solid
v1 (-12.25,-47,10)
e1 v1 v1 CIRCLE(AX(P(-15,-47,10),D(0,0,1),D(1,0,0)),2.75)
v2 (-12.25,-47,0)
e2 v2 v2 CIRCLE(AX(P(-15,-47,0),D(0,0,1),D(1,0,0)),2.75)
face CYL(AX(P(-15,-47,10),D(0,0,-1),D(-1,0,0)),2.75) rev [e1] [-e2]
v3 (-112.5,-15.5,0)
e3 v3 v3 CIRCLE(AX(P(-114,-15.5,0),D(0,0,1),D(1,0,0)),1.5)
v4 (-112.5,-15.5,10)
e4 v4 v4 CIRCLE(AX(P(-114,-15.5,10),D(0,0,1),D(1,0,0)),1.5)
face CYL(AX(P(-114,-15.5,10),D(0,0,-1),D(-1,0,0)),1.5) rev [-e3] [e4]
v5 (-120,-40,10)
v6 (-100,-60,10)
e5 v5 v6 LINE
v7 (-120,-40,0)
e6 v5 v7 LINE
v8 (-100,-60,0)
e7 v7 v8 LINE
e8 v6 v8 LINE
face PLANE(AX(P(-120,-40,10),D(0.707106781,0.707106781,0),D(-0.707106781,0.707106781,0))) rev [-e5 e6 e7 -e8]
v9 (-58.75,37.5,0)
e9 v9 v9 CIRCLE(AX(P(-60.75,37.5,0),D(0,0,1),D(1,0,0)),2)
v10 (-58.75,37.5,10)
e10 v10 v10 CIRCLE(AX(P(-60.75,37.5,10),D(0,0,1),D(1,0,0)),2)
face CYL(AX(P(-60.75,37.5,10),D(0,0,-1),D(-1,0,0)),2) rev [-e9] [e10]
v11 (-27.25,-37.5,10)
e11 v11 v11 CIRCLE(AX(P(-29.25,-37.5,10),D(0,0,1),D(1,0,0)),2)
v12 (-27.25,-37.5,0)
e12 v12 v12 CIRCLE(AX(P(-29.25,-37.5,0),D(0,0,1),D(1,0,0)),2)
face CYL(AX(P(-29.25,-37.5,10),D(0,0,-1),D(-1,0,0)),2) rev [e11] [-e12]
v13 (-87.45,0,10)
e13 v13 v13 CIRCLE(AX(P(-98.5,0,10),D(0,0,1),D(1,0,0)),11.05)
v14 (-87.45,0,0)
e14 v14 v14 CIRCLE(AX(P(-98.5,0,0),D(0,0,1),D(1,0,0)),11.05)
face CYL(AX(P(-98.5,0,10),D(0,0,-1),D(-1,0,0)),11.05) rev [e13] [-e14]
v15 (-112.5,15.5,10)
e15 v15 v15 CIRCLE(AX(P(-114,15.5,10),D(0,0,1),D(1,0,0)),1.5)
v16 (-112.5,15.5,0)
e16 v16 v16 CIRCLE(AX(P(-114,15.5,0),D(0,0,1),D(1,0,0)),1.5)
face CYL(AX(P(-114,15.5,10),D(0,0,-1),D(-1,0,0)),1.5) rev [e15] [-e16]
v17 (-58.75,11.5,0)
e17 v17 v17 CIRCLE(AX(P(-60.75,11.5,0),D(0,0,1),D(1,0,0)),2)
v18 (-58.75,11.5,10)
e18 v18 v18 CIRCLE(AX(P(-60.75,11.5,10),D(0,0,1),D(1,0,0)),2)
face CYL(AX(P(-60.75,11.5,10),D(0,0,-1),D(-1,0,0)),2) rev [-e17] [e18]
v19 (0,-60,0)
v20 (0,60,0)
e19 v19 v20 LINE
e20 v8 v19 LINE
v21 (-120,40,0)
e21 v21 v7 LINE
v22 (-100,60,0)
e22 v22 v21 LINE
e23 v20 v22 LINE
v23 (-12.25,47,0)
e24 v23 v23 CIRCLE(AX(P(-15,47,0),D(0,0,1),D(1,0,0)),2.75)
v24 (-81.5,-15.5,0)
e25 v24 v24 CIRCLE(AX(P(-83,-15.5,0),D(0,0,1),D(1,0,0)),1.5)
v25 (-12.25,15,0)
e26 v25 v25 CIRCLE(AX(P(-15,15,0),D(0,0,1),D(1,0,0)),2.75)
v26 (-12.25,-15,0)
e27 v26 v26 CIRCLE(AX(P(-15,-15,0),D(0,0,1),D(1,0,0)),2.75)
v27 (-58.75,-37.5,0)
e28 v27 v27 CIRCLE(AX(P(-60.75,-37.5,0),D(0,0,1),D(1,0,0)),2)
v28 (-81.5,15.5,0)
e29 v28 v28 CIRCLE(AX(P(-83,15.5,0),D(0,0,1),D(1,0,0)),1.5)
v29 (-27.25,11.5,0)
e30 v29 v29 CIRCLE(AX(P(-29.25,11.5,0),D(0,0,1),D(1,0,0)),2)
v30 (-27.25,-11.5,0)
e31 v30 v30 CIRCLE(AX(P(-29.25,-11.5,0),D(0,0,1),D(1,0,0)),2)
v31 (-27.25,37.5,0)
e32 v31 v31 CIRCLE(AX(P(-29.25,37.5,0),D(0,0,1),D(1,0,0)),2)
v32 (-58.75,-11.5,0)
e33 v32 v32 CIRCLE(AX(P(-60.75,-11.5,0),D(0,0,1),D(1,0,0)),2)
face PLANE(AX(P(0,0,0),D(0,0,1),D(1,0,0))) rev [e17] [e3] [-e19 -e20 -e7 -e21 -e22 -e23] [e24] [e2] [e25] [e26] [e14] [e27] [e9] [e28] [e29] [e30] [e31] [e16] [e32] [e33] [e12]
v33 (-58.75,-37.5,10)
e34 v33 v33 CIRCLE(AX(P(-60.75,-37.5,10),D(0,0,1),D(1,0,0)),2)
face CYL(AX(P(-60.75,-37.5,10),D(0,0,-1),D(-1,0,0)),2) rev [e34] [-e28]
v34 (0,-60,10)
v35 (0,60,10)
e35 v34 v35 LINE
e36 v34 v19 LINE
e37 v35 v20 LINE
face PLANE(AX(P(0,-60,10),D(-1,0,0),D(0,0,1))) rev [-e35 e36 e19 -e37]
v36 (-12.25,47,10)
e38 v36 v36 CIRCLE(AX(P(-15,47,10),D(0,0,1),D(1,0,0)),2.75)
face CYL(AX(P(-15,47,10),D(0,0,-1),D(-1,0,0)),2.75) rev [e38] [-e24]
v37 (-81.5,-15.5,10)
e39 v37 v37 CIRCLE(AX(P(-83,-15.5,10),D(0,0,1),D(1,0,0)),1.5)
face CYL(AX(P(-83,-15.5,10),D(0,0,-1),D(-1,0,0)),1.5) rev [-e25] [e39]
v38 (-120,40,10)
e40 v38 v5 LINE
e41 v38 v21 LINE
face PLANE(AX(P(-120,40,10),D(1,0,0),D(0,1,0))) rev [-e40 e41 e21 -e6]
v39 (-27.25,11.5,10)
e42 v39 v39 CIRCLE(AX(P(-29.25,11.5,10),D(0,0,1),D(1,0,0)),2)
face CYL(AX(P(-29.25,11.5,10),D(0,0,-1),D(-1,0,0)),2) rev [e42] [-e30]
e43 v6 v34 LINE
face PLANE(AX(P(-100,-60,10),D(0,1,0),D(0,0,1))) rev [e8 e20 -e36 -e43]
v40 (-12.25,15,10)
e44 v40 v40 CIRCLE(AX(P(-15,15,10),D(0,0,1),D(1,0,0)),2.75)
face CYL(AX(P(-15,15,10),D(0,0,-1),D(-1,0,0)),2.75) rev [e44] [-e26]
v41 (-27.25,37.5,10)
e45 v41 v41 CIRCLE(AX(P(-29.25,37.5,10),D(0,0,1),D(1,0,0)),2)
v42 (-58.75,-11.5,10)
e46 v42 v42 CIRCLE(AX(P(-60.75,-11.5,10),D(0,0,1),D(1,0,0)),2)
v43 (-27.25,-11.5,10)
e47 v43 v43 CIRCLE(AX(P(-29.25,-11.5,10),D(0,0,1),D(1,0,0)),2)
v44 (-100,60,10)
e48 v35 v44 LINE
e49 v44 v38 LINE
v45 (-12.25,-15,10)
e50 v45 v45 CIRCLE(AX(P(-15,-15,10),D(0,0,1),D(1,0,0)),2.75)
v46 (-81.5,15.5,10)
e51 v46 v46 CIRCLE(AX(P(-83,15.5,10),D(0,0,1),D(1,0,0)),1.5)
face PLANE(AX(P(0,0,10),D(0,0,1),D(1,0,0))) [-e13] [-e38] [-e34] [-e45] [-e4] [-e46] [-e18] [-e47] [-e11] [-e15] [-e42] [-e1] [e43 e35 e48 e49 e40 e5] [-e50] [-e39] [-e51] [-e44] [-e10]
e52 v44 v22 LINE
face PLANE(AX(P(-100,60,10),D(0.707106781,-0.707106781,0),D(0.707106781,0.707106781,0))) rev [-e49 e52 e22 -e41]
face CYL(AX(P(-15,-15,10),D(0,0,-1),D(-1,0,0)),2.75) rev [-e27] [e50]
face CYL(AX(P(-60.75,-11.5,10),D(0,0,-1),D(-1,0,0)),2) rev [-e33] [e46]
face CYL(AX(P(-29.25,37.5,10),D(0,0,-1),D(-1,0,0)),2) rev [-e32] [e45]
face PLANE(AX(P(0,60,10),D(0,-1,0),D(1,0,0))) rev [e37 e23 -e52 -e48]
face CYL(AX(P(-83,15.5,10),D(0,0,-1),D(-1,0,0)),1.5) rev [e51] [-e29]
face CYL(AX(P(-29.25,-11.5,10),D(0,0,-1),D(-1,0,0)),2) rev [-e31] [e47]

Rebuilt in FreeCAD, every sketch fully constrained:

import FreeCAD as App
import Part
import Sketcher

doc = App.newDocument("Part")
body = doc.addObject("PartDesign::Body", "Body")

sketch1 = body.newObject("Sketcher::SketchObject", "Sketch")
sketch1.AttachmentSupport = (doc.getObject("XY_Plane"), [""])
sketch1.MapMode = "FlatFace"
sketch1.addGeometry(Part.LineSegment(App.Vector(0, -60, 0), App.Vector(0, 60, 0)), False)
sketch1.addGeometry(Part.LineSegment(App.Vector(0, 60, 0), App.Vector(-100, 60, 0)), False)
sketch1.addGeometry(Part.LineSegment(App.Vector(-100, 60, 0), App.Vector(-120, 40, 0)), False)
sketch1.addGeometry(Part.LineSegment(App.Vector(-120, 40, 0), App.Vector(-120, -40, 0)), False)
sketch1.addGeometry(Part.LineSegment(App.Vector(-120, -40, 0), App.Vector(-100, -60, 0)), False)
sketch1.addGeometry(Part.LineSegment(App.Vector(-100, -60, 0), App.Vector(0, -60, 0)), False)
sketch1.addGeometry(Part.Circle(App.Vector(-114, -15.5, 0), App.Vector(0, 0, 1), 1.5), False)
sketch1.addGeometry(Part.Circle(App.Vector(-83, -15.5, 0), App.Vector(0, 0, 1), 1.5), False)
sketch1.addGeometry(Part.Circle(App.Vector(-60.8, -37.5, 0), App.Vector(0, 0, 1), 2), False)
sketch1.addGeometry(Part.Circle(App.Vector(-29.2, -37.5, 0), App.Vector(0, 0, 1), 2), False)
sketch1.addGeometry(Part.Circle(App.Vector(-15, -47, 0), App.Vector(0, 0, 1), 2.8), False)
sketch1.addGeometry(Part.Circle(App.Vector(-60.8, -11.5, 0), App.Vector(0, 0, 1), 2), False)
sketch1.addGeometry(Part.Circle(App.Vector(-15, -15, 0), App.Vector(0, 0, 1), 2.8), False)
sketch1.addGeometry(Part.Circle(App.Vector(-29.2, -11.5, 0), App.Vector(0, 0, 1), 2), False)
sketch1.addGeometry(Part.Circle(App.Vector(-98.5, 0, 0), App.Vector(0, 0, 1), 11.1), False)
sketch1.addGeometry(Part.Circle(App.Vector(-114, 15.5, 0), App.Vector(0, 0, 1), 1.5), False)
sketch1.addGeometry(Part.Circle(App.Vector(-83, 15.5, 0), App.Vector(0, 0, 1), 1.5), False)
sketch1.addGeometry(Part.Circle(App.Vector(-60.8, 11.5, 0), App.Vector(0, 0, 1), 2), False)
sketch1.addGeometry(Part.Circle(App.Vector(-29.2, 11.5, 0), App.Vector(0, 0, 1), 2), False)
sketch1.addGeometry(Part.Circle(App.Vector(-15, 15, 0), App.Vector(0, 0, 1), 2.8), False)
sketch1.addGeometry(Part.Circle(App.Vector(-60.8, 37.5, 0), App.Vector(0, 0, 1), 2), False)
sketch1.addGeometry(Part.Circle(App.Vector(-29.2, 37.5, 0), App.Vector(0, 0, 1), 2), False)
sketch1.addGeometry(Part.Circle(App.Vector(-15, 47, 0), App.Vector(0, 0, 1), 2.8), False)
sketch1.addConstraint(Sketcher.Constraint("Coincident", 0, 2, 1, 1))
sketch1.addConstraint(Sketcher.Constraint("Coincident", 1, 2, 2, 1))
sketch1.addConstraint(Sketcher.Constraint("Coincident", 2, 2, 3, 1))
sketch1.addConstraint(Sketcher.Constraint("Coincident", 3, 2, 4, 1))
sketch1.addConstraint(Sketcher.Constraint("Coincident", 4, 2, 5, 1))
sketch1.addConstraint(Sketcher.Constraint("Coincident", 5, 2, 0, 1))
sketch1.addConstraint(Sketcher.Constraint("Vertical", 0))
sketch1.addConstraint(Sketcher.Constraint("Horizontal", 1))
sketch1.addConstraint(Sketcher.Constraint("Vertical", 3))
sketch1.addConstraint(Sketcher.Constraint("Horizontal", 5))
sketch1.addConstraint(Sketcher.Constraint("Equal", 6, 7))
sketch1.addConstraint(Sketcher.Constraint("Equal", 8, 9))
sketch1.addConstraint(Sketcher.Constraint("Equal", 9, 11))
sketch1.addConstraint(Sketcher.Constraint("Equal", 10, 12))
sketch1.addConstraint(Sketcher.Constraint("Equal", 11, 13))
sketch1.addConstraint(Sketcher.Constraint("Equal", 7, 15))
sketch1.addConstraint(Sketcher.Constraint("Equal", 15, 16))
sketch1.addConstraint(Sketcher.Constraint("Equal", 13, 17))
sketch1.addConstraint(Sketcher.Constraint("Equal", 17, 18))
sketch1.addConstraint(Sketcher.Constraint("Equal", 12, 19))
sketch1.addConstraint(Sketcher.Constraint("Equal", 18, 20))
sketch1.addConstraint(Sketcher.Constraint("Equal", 20, 21))
sketch1.addConstraint(Sketcher.Constraint("Equal", 19, 22))
sketch1.addConstraint(Sketcher.Constraint("Symmetric", 0, 2, 5, 2, -1, 1))
sketch1.addConstraint(Sketcher.Constraint("Symmetric", 6, 3, 15, 3, -1))
sketch1.addConstraint(Sketcher.Constraint("Symmetric", 7, 3, 16, 3, -1))
sketch1.addConstraint(Sketcher.Constraint("Symmetric", 11, 3, 17, 3, -1))
sketch1.addConstraint(Sketcher.Constraint("Symmetric", 13, 3, 18, 3, -1))
sketch1.addConstraint(Sketcher.Constraint("Symmetric", 12, 3, 19, 3, -1))
sketch1.addConstraint(Sketcher.Constraint("Symmetric", 8, 3, 20, 3, -1))
sketch1.addConstraint(Sketcher.Constraint("Symmetric", 9, 3, 21, 3, -1))
sketch1.addConstraint(Sketcher.Constraint("Symmetric", 10, 3, 22, 3, -1))
sketch1.addConstraint(Sketcher.Constraint("PointOnObject", 14, 3, -1))
sketch1.addConstraint(Sketcher.Constraint("Perpendicular", 2, 4))
sketch1.addConstraint(Sketcher.Constraint("Horizontal", 6, 3, 7, 3))
sketch1.addConstraint(Sketcher.Constraint("Horizontal", 8, 3, 9, 3))
sketch1.addConstraint(Sketcher.Constraint("Horizontal", 11, 3, 13, 3))
sketch1.addConstraint(Sketcher.Constraint("Vertical", 8, 3, 11, 3))
sketch1.addConstraint(Sketcher.Constraint("Vertical", 10, 3, 12, 3))
sketch1.addConstraint(Sketcher.Constraint("Vertical", 9, 3, 13, 3))
sketch1.addConstraint(Sketcher.Constraint("Vertical", 1, 2, 4, 2))
sketch1.addConstraint(Sketcher.Constraint("Equal", 2, 4))
sketch1.addConstraint(Sketcher.Constraint("Diameter", 6, 3.0))
sketch1.addConstraint(Sketcher.Constraint("Diameter", 8, 4.0))
sketch1.addConstraint(Sketcher.Constraint("Diameter", 10, 5.5))
sketch1.addConstraint(Sketcher.Constraint("Diameter", 14, 22.1))
sketch1.addConstraint(Sketcher.Constraint("DistanceX", 1, 2, 1, 1, 100.0))
sketch1.addConstraint(Sketcher.Constraint("DistanceY", 0, 1, 0, 2, 120.0))
sketch1.addConstraint(Sketcher.Constraint("DistanceY", 3, 2, 3, 1, 80.0))
sketch1.addConstraint(Sketcher.Constraint("DistanceX", 6, 3, -1, 1, 114.0))
sketch1.addConstraint(Sketcher.Constraint("DistanceX", 7, 3, -1, 1, 83.0))
sketch1.addConstraint(Sketcher.Constraint("DistanceX", 10, 3, -1, 1, 15.0))
sketch1.addConstraint(Sketcher.Constraint("DistanceY", 10, 3, -1, 1, 47.0))
sketch1.addConstraint(Sketcher.Constraint("DistanceY", 12, 3, -1, 1, 15.0))
sketch1.addConstraint(Sketcher.Constraint("DistanceY", 8, 3, 7, 3, 22.0))
sketch1.addConstraint(Sketcher.Constraint("DistanceY", 7, 3, 11, 3, 4.0))
sketch1.addConstraint(Sketcher.Constraint("DistanceY", 6, 3, 15, 3, 31.0))
sketch1.addConstraint(Sketcher.Constraint("DistanceX", 14, 3, -1, 1, 98.5))
sketch1.addConstraint(Sketcher.Constraint("DistanceX", 8, 3, 9, 3, 31.5))
sketch1.addConstraint(Sketcher.Constraint("DistanceX", 8, 3, -1, 1, 60.75))
pad1 = body.newObject("PartDesign::Pad", "Pad")
pad1.Profile = sketch1
pad1.Length = 10

doc.recompute()
